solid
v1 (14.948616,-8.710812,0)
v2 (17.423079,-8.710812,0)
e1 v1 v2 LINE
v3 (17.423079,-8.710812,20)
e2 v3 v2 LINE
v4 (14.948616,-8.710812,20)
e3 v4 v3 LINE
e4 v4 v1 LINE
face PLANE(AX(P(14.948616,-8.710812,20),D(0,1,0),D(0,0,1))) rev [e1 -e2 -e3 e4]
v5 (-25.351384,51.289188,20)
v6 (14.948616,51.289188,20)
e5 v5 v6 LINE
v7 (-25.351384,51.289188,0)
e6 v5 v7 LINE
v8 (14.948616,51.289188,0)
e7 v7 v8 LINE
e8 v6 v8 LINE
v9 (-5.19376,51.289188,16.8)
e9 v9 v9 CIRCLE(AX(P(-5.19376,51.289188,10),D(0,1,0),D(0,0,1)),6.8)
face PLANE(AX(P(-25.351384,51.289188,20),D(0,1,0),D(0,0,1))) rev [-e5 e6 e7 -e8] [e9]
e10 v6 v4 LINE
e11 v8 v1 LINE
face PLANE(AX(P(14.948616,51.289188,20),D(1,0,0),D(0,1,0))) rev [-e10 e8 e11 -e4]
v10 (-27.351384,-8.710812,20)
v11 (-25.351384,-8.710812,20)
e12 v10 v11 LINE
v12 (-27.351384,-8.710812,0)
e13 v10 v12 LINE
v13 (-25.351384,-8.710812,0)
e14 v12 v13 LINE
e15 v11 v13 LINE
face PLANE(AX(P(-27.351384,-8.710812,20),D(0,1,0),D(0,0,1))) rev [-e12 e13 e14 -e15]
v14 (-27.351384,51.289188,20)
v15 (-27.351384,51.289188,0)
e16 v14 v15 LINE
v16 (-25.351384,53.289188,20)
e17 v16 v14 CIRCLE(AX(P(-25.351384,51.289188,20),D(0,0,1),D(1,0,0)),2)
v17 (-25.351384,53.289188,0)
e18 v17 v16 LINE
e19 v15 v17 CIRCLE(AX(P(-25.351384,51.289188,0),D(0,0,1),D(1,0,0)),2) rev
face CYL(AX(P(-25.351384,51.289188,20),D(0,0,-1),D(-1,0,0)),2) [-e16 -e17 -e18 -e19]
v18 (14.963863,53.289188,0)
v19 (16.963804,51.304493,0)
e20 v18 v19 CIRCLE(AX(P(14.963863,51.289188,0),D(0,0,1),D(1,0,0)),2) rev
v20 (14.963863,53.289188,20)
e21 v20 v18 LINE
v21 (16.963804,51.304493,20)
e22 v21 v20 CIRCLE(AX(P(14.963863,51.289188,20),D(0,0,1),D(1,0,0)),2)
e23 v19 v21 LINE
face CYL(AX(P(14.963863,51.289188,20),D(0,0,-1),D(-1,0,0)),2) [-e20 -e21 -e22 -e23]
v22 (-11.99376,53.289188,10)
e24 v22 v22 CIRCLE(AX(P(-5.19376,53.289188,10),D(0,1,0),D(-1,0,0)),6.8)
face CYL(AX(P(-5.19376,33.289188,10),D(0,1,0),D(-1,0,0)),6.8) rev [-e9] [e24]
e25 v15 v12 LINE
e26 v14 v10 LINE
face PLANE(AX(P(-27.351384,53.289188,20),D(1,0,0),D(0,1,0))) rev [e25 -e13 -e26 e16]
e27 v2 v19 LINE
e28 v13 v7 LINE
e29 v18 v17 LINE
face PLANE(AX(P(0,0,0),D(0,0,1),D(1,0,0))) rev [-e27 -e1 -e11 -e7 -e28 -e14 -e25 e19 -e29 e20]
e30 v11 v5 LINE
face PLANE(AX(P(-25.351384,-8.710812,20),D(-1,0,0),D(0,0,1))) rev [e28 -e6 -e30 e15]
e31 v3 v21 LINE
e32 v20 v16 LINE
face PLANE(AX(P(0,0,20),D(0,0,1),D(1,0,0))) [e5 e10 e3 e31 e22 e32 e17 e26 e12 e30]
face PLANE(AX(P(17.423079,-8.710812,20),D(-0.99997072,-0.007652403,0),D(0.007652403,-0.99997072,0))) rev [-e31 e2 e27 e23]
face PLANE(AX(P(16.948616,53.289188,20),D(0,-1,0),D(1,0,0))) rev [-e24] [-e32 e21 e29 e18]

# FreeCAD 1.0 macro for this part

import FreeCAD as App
import Part
import Sketcher
Q = App.Units.Quantity


def edges_at(feature, points):
    """Names of the edges that pass closest to the given points."""
    edges = feature.Shape.Edges
    near = lambda p: min(range(len(edges)), key=lambda i: edges[i].distToShape(Part.Vertex(*p))[0])
    return sorted({f"Edge{near(p) + 1}" for p in points})

doc = App.newDocument("Part")
body = doc.addObject("PartDesign::Body", "Body")

sketch1 = body.newObject("Sketcher::SketchObject", "Sketch")
sketch1.AttachmentSupport = (doc.getObject("XY_Plane"), [""])
sketch1.MapMode = "FlatFace"
sketch1.addGeometry([
    Part.LineSegment(App.Vector(-27.4, 53.3, 0), App.Vector(-27.4, -8.7, 0)),
    Part.LineSegment(App.Vector(-27.4, -8.7, 0), App.Vector(-25.4, -8.7, 0)),
    Part.LineSegment(App.Vector(-25.4, -8.7, 0), App.Vector(-25.4, 51.3, 0)),
    Part.LineSegment(App.Vector(-25.4, 51.3, 0), App.Vector(14.9, 51.3, 0)),
    Part.LineSegment(App.Vector(14.9, 51.3, 0), App.Vector(14.9, -8.7, 0)),
    Part.LineSegment(App.Vector(14.9, -8.7, 0), App.Vector(17.4, -8.7, 0)),
    Part.LineSegment(App.Vector(17.4, -8.7, 0), App.Vector(16.9, 53.3, 0)),
    Part.LineSegment(App.Vector(16.9, 53.3, 0), App.Vector(-27.4, 53.3, 0)),
], False)
sketch1.addConstraint([
    Sketcher.Constraint("Coincident", 0, 2, 1, 1),
    Sketcher.Constraint("Coincident", 1, 2, 2, 1),
    Sketcher.Constraint("Coincident", 2, 2, 3, 1),
    Sketcher.Constraint("Coincident", 3, 2, 4, 1),
    Sketcher.Constraint("Coincident", 4, 2, 5, 1),
    Sketcher.Constraint("Coincident", 5, 2, 6, 1),
    Sketcher.Constraint("Coincident", 6, 2, 7, 1),
    Sketcher.Constraint("Coincident", 7, 2, 0, 1),
    Sketcher.Constraint("Vertical", 0),
    Sketcher.Constraint("Horizontal", 1),
    Sketcher.Constraint("Vertical", 2),
    Sketcher.Constraint("Horizontal", 3),
    Sketcher.Constraint("Vertical", 4),
    Sketcher.Constraint("Horizontal", 5),
    Sketcher.Constraint("Horizontal", 7),
    Sketcher.Constraint("Horizontal", 1, 2, 4, 2),
    Sketcher.Constraint("DistanceX", 1, 1, 1, 2, Q("2 mm")),
    Sketcher.Constraint("DistanceY", 0, 2, 0, 1, Q("62 mm")),
    Sketcher.Constraint("DistanceY", 2, 1, 2, 2, Q("60 mm")),
    Sketcher.Constraint("DistanceX", 3, 1, 3, 2, Q("40.3 mm")),
    Sketcher.Constraint("DistanceX", 7, 2, 7, 1, Q("44.3 mm")),
    Sketcher.Constraint("DistanceX", 5, 1, 5, 2, Q("2.474463 mm")),
    Sketcher.Constraint("DistanceY", 0, 2, -1, 1, Q("8.710812 mm")),
    Sketcher.Constraint("DistanceX", -1, 1, 5, 2, Q("17.423079 mm")),
])
pad1 = body.newObject("PartDesign::Pad", "Pad")
pad1.Profile = sketch1
pad1.Length = 20
doc.recompute()

fillet = body.newObject("PartDesign::Fillet", "Fillet")
fillet.Base = (pad1, edges_at(pad1, [(-27.351, 53.289, 10)]))
fillet.Radius = 2
doc.recompute()

fillet2 = body.newObject("PartDesign::Fillet", "Fillet001")
fillet2.Base = (fillet, edges_at(fillet, [(16.949, 53.289, 10)]))
fillet2.Radius = 2

sketch2 = body.newObject("Sketcher::SketchObject", "Sketch001")
sketch2.AttachmentSupport = (doc.getObject("XZ_Plane"), [""])
sketch2.MapMode = "FlatFace"
sketch2.AttachmentOffset = App.Placement(App.Vector(0, 0, -53.289188), App.Rotation())
sketch2.addGeometry(Part.Circle(App.Vector(-5, 10, 0), App.Vector(0, 0, 1), 7), False)
sketch2.addConstraint([
    Sketcher.Constraint("Diameter", 0, Q("13.6 mm")),
    Sketcher.Constraint("DistanceY", -1, 1, 0, 3, Q("10 mm")),
    Sketcher.Constraint("DistanceX", 0, 3, -1, 1, Q("5.19376 mm")),
])
pocket1 = body.newObject("PartDesign::Pocket", "Pocket")
pocket1.Profile = sketch2
pocket1.Length = 20
pocket1.Reversed = True

doc.recompute()
